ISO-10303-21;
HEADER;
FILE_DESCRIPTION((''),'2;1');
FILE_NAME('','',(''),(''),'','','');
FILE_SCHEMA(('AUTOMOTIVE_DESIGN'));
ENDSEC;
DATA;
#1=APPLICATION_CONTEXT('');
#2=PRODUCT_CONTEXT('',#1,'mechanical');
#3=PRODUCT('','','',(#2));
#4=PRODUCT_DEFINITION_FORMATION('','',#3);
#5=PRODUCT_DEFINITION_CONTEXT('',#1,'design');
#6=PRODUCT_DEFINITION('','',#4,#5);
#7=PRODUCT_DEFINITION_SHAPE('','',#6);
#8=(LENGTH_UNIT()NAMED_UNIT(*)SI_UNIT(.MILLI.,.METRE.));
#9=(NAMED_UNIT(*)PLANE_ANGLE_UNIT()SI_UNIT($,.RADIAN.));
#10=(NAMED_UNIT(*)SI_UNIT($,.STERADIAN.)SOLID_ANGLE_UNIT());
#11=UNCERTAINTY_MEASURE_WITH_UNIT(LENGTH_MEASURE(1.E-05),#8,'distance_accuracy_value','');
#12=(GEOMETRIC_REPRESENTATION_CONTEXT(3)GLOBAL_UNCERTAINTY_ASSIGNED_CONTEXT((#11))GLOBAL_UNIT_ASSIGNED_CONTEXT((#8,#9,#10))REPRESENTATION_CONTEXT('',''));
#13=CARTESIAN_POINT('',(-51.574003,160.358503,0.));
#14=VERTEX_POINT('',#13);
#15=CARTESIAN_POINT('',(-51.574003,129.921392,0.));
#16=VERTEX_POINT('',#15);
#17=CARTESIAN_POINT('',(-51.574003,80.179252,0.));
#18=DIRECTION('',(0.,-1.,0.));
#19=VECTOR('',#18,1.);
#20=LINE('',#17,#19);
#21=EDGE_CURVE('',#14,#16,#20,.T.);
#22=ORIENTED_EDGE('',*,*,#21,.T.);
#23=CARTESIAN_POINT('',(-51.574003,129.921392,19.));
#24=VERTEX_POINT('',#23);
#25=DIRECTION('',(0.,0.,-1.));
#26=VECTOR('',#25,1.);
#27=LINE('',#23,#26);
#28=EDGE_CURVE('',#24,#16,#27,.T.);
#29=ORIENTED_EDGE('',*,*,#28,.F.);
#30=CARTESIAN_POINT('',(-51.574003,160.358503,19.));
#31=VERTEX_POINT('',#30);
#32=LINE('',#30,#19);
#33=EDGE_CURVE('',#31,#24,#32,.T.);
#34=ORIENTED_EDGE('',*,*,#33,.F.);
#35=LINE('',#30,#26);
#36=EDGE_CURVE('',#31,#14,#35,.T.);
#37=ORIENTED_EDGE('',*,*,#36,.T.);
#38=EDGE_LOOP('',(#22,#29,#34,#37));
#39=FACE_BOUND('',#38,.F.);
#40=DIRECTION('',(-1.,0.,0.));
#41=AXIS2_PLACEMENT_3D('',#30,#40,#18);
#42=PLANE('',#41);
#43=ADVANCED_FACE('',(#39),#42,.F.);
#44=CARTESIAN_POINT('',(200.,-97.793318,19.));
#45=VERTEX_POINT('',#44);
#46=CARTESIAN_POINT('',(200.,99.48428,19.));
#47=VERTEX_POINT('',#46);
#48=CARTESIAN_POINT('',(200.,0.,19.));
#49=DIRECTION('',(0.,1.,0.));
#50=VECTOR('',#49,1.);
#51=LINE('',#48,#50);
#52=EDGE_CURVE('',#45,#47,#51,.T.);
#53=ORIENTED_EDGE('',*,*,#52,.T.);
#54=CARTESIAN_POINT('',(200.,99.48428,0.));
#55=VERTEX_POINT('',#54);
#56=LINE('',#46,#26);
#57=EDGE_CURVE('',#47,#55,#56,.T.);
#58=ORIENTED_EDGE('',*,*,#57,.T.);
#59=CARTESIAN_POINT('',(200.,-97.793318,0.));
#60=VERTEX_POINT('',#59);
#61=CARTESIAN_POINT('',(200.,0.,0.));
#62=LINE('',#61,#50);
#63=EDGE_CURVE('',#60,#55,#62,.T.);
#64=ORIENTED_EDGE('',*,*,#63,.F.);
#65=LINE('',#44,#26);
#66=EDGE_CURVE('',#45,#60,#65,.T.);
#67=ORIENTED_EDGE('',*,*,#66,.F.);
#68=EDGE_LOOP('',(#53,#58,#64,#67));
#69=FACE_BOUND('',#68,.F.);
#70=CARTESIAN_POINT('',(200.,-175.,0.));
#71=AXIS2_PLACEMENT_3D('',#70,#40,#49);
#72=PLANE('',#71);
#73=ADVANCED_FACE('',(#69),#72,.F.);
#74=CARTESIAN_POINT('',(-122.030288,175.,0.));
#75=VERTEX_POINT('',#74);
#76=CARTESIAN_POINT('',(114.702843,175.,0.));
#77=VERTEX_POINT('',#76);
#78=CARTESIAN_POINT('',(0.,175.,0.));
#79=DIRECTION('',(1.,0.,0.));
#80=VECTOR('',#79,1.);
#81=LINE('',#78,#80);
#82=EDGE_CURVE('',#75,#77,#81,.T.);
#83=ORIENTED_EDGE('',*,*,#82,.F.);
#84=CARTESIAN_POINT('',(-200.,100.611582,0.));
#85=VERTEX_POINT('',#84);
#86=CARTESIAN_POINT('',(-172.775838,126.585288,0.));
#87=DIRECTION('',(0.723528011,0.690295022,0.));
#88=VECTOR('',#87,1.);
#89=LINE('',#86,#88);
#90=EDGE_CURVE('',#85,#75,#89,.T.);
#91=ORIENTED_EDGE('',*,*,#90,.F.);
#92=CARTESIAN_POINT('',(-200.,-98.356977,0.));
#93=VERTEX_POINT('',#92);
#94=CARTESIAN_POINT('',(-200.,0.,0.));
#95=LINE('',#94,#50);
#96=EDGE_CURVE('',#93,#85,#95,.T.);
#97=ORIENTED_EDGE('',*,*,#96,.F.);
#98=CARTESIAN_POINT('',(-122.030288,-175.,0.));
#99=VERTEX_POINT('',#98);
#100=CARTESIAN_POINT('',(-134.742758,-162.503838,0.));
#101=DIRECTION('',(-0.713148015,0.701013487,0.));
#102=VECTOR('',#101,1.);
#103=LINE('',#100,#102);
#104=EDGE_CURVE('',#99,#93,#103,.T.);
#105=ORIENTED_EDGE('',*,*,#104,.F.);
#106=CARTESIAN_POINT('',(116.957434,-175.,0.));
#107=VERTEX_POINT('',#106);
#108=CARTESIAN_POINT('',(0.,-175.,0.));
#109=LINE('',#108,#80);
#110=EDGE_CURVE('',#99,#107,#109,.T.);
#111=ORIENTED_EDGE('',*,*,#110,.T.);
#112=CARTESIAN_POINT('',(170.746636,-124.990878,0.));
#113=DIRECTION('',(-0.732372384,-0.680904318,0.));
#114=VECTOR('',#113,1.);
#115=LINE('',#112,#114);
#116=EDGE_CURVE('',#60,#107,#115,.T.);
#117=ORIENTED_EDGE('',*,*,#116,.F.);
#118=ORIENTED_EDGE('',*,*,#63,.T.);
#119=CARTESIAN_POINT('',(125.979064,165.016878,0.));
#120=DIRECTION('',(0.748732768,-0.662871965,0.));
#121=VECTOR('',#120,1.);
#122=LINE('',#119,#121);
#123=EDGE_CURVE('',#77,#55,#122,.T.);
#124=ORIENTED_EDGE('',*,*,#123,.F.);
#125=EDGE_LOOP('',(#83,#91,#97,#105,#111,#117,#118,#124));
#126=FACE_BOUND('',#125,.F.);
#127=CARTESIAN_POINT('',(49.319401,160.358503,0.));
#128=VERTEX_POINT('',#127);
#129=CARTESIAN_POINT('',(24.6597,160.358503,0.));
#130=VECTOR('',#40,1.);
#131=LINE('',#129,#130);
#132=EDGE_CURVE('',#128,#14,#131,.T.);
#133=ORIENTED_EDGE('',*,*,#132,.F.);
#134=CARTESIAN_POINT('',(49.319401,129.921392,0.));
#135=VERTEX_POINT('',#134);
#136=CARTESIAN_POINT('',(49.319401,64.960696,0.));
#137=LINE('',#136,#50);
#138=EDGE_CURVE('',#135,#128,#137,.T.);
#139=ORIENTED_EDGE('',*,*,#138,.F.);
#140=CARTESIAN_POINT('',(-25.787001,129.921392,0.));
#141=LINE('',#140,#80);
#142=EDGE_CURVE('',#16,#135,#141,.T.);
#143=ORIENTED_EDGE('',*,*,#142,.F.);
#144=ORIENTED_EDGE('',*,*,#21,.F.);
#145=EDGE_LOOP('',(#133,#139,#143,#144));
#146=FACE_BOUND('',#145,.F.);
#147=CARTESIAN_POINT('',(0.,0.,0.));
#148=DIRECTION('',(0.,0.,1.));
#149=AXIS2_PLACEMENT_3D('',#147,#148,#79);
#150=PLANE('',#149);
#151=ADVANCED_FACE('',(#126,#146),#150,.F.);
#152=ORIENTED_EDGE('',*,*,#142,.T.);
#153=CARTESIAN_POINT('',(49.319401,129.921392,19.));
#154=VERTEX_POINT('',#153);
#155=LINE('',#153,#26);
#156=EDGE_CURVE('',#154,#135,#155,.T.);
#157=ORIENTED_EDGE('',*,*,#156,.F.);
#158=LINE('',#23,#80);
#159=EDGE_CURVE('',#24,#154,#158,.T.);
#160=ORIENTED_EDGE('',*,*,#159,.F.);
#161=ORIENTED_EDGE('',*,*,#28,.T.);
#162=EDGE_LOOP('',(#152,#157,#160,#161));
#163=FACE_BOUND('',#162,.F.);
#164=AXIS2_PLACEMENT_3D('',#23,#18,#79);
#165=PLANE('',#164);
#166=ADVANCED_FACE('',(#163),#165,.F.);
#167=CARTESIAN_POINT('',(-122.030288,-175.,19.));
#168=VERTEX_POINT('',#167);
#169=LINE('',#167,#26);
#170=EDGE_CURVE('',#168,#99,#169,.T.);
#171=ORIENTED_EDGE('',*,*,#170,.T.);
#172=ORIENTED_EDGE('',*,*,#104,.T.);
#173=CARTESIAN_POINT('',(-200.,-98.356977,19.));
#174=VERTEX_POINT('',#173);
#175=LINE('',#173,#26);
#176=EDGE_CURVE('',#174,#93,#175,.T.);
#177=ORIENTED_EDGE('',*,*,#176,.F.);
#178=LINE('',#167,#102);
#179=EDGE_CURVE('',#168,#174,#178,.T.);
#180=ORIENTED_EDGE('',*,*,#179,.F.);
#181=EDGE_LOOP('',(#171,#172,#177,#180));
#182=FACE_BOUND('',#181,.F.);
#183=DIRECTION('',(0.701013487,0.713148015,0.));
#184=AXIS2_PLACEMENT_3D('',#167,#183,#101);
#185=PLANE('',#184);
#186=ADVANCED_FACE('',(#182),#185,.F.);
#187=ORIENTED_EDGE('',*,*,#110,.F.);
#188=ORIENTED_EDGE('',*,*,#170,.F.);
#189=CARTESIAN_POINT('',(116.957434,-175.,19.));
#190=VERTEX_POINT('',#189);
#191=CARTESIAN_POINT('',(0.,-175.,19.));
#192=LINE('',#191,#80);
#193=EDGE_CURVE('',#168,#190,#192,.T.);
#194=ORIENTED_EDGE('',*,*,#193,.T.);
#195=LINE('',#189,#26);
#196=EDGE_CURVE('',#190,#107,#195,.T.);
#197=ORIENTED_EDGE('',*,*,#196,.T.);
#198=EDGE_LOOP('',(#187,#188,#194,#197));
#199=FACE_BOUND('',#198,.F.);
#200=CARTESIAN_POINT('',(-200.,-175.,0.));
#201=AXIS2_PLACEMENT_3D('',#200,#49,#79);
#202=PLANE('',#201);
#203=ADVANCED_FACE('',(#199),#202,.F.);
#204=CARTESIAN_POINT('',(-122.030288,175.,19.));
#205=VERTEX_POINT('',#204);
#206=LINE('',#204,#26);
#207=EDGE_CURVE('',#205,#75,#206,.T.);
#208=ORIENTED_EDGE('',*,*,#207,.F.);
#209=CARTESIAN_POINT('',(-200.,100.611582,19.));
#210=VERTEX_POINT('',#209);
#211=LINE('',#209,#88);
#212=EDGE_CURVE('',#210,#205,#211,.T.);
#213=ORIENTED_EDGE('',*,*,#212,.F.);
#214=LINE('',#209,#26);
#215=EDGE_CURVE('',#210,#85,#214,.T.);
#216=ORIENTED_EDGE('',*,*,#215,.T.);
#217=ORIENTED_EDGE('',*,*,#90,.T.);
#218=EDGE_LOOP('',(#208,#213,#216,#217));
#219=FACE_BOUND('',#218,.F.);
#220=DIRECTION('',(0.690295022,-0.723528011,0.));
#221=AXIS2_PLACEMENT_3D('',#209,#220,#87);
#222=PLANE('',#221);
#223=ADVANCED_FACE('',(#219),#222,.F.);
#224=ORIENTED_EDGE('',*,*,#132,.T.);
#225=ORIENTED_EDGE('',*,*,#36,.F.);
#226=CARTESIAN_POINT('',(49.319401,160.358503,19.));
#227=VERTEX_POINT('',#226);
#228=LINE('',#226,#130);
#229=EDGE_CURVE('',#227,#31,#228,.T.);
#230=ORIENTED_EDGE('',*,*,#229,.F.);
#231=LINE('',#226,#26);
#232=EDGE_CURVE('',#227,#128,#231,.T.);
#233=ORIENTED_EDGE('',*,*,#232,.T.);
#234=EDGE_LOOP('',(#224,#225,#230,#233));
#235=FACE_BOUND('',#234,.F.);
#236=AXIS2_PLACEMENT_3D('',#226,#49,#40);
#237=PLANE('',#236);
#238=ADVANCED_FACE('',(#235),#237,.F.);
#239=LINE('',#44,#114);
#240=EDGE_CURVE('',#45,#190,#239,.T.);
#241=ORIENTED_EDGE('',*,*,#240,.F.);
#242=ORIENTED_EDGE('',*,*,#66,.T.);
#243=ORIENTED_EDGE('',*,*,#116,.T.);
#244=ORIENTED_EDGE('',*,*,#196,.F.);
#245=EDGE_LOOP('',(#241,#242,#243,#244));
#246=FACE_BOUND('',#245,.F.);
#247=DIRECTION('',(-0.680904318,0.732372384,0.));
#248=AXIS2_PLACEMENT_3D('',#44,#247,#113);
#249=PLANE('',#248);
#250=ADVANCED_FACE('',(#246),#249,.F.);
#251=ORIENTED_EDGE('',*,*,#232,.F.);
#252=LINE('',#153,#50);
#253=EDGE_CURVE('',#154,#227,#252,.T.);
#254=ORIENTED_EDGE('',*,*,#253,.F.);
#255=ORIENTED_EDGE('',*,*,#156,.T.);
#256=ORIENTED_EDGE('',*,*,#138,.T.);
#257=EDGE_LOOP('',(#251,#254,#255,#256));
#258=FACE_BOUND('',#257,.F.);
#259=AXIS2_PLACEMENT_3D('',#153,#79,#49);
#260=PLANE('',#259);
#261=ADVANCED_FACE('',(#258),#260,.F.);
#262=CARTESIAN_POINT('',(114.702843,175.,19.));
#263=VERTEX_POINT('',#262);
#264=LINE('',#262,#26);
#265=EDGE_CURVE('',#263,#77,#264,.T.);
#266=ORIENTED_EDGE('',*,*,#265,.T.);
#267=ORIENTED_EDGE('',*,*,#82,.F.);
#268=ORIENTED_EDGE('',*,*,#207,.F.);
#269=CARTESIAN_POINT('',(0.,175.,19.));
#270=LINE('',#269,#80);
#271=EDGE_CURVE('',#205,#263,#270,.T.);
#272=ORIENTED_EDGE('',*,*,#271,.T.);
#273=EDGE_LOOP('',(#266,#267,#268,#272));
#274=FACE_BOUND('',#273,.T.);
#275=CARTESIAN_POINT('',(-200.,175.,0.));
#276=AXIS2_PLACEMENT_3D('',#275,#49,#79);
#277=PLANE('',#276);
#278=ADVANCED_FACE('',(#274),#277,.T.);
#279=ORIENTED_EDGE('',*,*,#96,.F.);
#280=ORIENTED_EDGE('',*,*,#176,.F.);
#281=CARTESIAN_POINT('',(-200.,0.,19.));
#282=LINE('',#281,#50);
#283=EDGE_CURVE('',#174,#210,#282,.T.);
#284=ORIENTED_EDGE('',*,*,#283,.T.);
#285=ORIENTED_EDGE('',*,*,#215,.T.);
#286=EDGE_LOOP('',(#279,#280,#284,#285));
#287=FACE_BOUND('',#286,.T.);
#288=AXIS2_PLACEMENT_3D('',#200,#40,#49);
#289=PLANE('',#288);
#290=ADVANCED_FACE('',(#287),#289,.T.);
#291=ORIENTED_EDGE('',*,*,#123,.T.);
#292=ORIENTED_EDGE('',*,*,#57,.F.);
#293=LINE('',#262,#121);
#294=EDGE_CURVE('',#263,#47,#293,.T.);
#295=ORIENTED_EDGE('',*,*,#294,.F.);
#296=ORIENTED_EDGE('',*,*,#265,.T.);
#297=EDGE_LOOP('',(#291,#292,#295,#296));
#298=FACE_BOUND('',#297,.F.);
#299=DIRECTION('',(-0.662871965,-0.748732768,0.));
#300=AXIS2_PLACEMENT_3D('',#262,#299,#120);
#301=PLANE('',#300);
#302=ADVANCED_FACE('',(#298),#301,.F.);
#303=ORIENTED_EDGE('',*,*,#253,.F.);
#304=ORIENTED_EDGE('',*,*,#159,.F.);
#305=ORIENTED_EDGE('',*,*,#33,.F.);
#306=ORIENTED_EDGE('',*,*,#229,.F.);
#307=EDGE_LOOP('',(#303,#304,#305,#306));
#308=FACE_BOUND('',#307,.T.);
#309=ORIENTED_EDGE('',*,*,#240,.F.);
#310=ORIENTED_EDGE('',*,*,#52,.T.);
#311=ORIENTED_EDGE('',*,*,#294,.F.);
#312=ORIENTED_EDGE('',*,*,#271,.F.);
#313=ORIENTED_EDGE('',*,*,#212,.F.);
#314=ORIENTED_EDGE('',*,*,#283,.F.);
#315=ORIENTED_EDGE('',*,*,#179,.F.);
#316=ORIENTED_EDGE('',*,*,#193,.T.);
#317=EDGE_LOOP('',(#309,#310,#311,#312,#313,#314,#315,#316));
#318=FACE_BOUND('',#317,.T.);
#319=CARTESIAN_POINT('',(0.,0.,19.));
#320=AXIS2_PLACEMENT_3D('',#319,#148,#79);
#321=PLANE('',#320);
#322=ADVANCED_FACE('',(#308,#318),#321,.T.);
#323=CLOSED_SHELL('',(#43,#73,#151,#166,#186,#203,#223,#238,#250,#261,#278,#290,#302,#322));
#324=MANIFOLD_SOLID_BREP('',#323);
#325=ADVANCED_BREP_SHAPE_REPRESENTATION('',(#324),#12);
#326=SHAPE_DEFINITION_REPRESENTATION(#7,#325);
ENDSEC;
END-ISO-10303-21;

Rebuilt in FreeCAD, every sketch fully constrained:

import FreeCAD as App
import Part
import Sketcher
from FreeCAD import Vector

doc = App.newDocument("Part")
params = doc.addObject("Spreadsheet::Sheet", "Params")
for row, (alias, value) in enumerate([
    ("sketch1_width", "400 mm"),
    ("sketch1_height", "350 mm"),
    ("pad1_length", "19 mm"),
], start=1):
    params.set(f"A{row}", alias)
    params.set(f"B{row}", "=" + value)
    params.setAlias(f"B{row}", alias)

body = doc.addObject("PartDesign::Body", "Body")

# Sketch on XY plane
sketch1 = body.newObject("Sketcher::SketchObject", "Sketch")
sketch1.AttachmentSupport = (doc.getObject("XY_Plane"), [""])
sketch1.MapMode = "FlatFace"
sketch1.addGeometry([
    Part.LineSegment(Vector(-200, 175, 0), Vector(-200, -175, 0)),
    Part.LineSegment(Vector(-200, -175, 0), Vector(200, -175, 0)),
    Part.LineSegment(Vector(200, -175, 0), Vector(200, 175, 0)),
    Part.LineSegment(Vector(200, 175, 0), Vector(-200, 175, 0)),
], False)
sketch1.addConstraint([
    Sketcher.Constraint("Coincident", 0, 2, 1, 1),
    Sketcher.Constraint("Coincident", 1, 2, 2, 1),
    Sketcher.Constraint("Coincident", 2, 2, 3, 1),
    Sketcher.Constraint("Coincident", 3, 2, 0, 1),
    Sketcher.Constraint("Vertical", 0),
    Sketcher.Constraint("Horizontal", 1),
    Sketcher.Constraint("Vertical", 2),
    Sketcher.Constraint("Horizontal", 3),
    Sketcher.Constraint("Symmetric", 0, 2, 2, 2, -1, 1),
    Sketcher.Constraint("DistanceX", 1, 1, 1, 2, 400.0),
    Sketcher.Constraint("DistanceY", 0, 2, 0, 1, 350.0),
])
sketch1.setExpression("Constraints[9]", "Params.sketch1_width")
sketch1.setExpression("Constraints[10]", "Params.sketch1_height")
pad1 = body.newObject("PartDesign::Pad", "Pad")
pad1.Profile = sketch1
pad1.setExpression("Length", "Params.pad1_length")

# Sketch on XY plane
sketch2 = body.newObject("Sketcher::SketchObject", "Sketch001")
sketch2.AttachmentSupport = (doc.getObject("XY_Plane"), [""])
sketch2.MapMode = "FlatFace"
sketch2.AttachmentOffset = App.Placement(Vector(0, 0, 19), App.Rotation())
sketch2.addGeometry([
    Part.LineSegment(Vector(-200, 175, 0), Vector(-200, 101, 0)),  # 0
    Part.LineSegment(Vector(-200, 101, 0), Vector(-122, 175, 0)),  # 1
    Part.LineSegment(Vector(-122, 175, 0), Vector(-200, 175, 0)),  # 2
    Part.LineSegment(Vector(200, 175, 0), Vector(115, 175, 0)),  # 3
    Part.LineSegment(Vector(115, 175, 0), Vector(200, 99, 0)),  # 4
    Part.LineSegment(Vector(200, 99, 0), Vector(200, 175, 0)),  # 5
    Part.LineSegment(Vector(200, -98, 0), Vector(117, -175, 0)),  # 6
    Part.LineSegment(Vector(117, -175, 0), Vector(200, -175, 0)),  # 7
    Part.LineSegment(Vector(200, -175, 0), Vector(200, -98, 0)),  # 8
    Part.LineSegment(Vector(-122, -175, 0), Vector(-200, -98, 0)),  # 9
    Part.LineSegment(Vector(-200, -98, 0), Vector(-200, -175, 0)),  # 10
    Part.LineSegment(Vector(-200, -175, 0), Vector(-122, -175, 0)),  # 11
], False)
sketch2.addConstraint([
    Sketcher.Constraint("Coincident", 0, 2, 1, 1),
    Sketcher.Constraint("Coincident", 1, 2, 2, 1),
    Sketcher.Constraint("Coincident", 2, 2, 0, 1),
    Sketcher.Constraint("Coincident", 3, 2, 4, 1),
    Sketcher.Constraint("Coincident", 4, 2, 5, 1),
    Sketcher.Constraint("Coincident", 5, 2, 3, 1),
    Sketcher.Constraint("Coincident", 6, 2, 7, 1),
    Sketcher.Constraint("Coincident", 7, 2, 8, 1),
    Sketcher.Constraint("Coincident", 8, 2, 6, 1),
    Sketcher.Constraint("Coincident", 9, 2, 10, 1),
    Sketcher.Constraint("Coincident", 10, 2, 11, 1),
    Sketcher.Constraint("Coincident", 11, 2, 9, 1),
    Sketcher.Constraint("Vertical", 0),
    Sketcher.Constraint("Horizontal", 2),
    Sketcher.Constraint("Horizontal", 3),
    Sketcher.Constraint("Vertical", 5),
    Sketcher.Constraint("Horizontal", 7),
    Sketcher.Constraint("Vertical", 8),
    Sketcher.Constraint("Vertical", 10),
    Sketcher.Constraint("Horizontal", 11),
    Sketcher.Constraint("Symmetric", 2, 2, 7, 2, -1, 1),
    Sketcher.Constraint("Symmetric", 5, 2, 10, 2, -1, 1),
    Sketcher.Constraint("Symmetric", 2, 2, 5, 2, -2),
    Sketcher.Constraint("Vertical", 1, 2, 11, 2),
    Sketcher.Constraint("DistanceX", 0, 2, -1, 1, 200.0),
    Sketcher.Constraint("DistanceY", -1, 1, 1, 2, 175.0),
    Sketcher.Constraint("DistanceX", 2, 2, 2, 1, 77.969712),
    Sketcher.Constraint("DistanceY", 0, 2, 0, 1, 74.388418),
    Sketcher.Constraint("DistanceY", 5, 1, 5, 2, 75.51572),
    Sketcher.Constraint("DistanceY", 8, 1, 8, 2, 77.206682),
    Sketcher.Constraint("Distance", 4, 113.92203),
    Sketcher.Constraint("Distance", 9, 109.331738),
    Sketcher.Constraint("DistanceX", 7, 1, 7, 2, 83.042566),
])
pocket1 = body.newObject("PartDesign::Pocket", "Pocket")
pocket1.Profile = sketch2
pocket1.Type = "ThroughAll"

# Sketch on XY plane
sketch3 = body.newObject("Sketcher::SketchObject", "Sketch002")
sketch3.AttachmentSupport = (doc.getObject("XY_Plane"), [""])
sketch3.MapMode = "FlatFace"
sketch3.AttachmentOffset = App.Placement(Vector(0, 0, 19), App.Rotation())
sketch3.addGeometry([
    Part.LineSegment(Vector(-52, 160, 0), Vector(-52, 130, 0)),
    Part.LineSegment(Vector(-52, 130, 0), Vector(49, 130, 0)),
    Part.LineSegment(Vector(49, 130, 0), Vector(49, 160, 0)),
    Part.LineSegment(Vector(49, 160, 0), Vector(-52, 160, 0)),
], False)
sketch3.addConstraint([
    Sketcher.Constraint("Coincident", 0, 2, 1, 1),
    Sketcher.Constraint("Coincident", 1, 2, 2, 1),
    Sketcher.Constraint("Coincident", 2, 2, 3, 1),
    Sketcher.Constraint("Coincident", 3, 2, 0, 1),
    Sketcher.Constraint("Vertical", 0),
    Sketcher.Constraint("Horizontal", 1),
    Sketcher.Constraint("Vertical", 2),
    Sketcher.Constraint("Horizontal", 3),
    Sketcher.Constraint("DistanceY", 0, 2, 0, 1, 30.437111),
    Sketcher.Constraint("DistanceX", -1, 1, 1, 2, 49.319401),
    Sketcher.Constraint("DistanceX", 1, 1, 1, 2, 100.893404),
    Sketcher.Constraint("DistanceY", -1, 1, 0, 2, 129.921392),
])
pocket2 = body.newObject("PartDesign::Pocket", "Pocket001")
pocket2.Profile = sketch3
pocket2.Type = "ThroughAll"

doc.recompute()
